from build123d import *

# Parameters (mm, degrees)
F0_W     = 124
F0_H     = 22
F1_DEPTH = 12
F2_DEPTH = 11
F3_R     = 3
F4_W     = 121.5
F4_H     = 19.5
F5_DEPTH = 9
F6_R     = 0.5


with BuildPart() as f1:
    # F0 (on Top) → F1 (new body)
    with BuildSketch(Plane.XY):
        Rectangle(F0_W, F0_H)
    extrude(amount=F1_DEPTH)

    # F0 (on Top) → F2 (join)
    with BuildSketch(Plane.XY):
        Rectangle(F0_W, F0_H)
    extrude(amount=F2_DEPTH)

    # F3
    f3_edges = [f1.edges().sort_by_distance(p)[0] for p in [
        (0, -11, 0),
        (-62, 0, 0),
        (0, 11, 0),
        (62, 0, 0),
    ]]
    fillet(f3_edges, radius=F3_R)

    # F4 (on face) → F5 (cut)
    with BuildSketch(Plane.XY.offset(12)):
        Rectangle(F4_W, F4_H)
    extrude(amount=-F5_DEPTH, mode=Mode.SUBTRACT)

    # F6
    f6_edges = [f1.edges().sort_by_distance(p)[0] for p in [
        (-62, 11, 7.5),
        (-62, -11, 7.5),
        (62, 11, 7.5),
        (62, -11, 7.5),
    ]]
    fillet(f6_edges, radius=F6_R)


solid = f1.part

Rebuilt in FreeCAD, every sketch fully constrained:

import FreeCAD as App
import Part
import Sketcher

V = App.Vector


def edges_at(feature, points):
    """Names of the edges that pass closest to the given points."""
    edges = feature.Shape.Edges
    near = lambda p: min(range(len(edges)), key=lambda i: edges[i].distToShape(Part.Vertex(*p))[0])
    return sorted({f"Edge{near(p) + 1}" for p in points})


def add_polygon(sketch, points):
    """Adds a closed chain of lines whose ends are joined by coincident constraints."""
    first, n = sketch.GeometryCount, len(points)
    for a, b in zip(points, points[1:] + points[:1]):
        sketch.addGeometry(Part.LineSegment(App.Vector(*a, 0), App.Vector(*b, 0)), False)
    for i in range(n):
        sketch.addConstraint(Sketcher.Constraint("Coincident", first + i, 2, first + (i + 1) % n, 1))

doc = App.newDocument("Part")
body = doc.addObject("PartDesign::Body", "Body")

sketch1 = body.newObject("Sketcher::SketchObject", "Sketch")
sketch1.AttachmentSupport = (doc.getObject("XY_Plane"), [""])
sketch1.MapMode = "FlatFace"
add_polygon(sketch1, [(-62, 11), (-62, -11), (62, -11), (62, 11)])
sketch1.addConstraint(Sketcher.Constraint("Vertical", 0))
sketch1.addConstraint(Sketcher.Constraint("Horizontal", 1))
sketch1.addConstraint(Sketcher.Constraint("Vertical", 2))
sketch1.addConstraint(Sketcher.Constraint("Horizontal", 3))
sketch1.addConstraint(Sketcher.Constraint("Symmetric", 0, 2, 2, 2, -1, 1))
sketch1.addConstraint(Sketcher.Constraint("DistanceX", 1, 1, 1, 2, 124.0))
sketch1.addConstraint(Sketcher.Constraint("DistanceY", 0, 2, 0, 1, 22.0))
pad1 = body.newObject("PartDesign::Pad", "Pad")
pad1.Profile = sketch1
pad1.Length = 12

sketch2 = body.newObject("Sketcher::SketchObject", "Sketch001")
sketch2.AttachmentSupport = (doc.getObject("XY_Plane"), [""])
sketch2.MapMode = "FlatFace"
add_polygon(sketch2, [(-62, 11), (-62, -11), (62, -11), (62, 11)])
sketch2.addConstraint(Sketcher.Constraint("Vertical", 0))
sketch2.addConstraint(Sketcher.Constraint("Horizontal", 1))
sketch2.addConstraint(Sketcher.Constraint("Vertical", 2))
sketch2.addConstraint(Sketcher.Constraint("Horizontal", 3))
sketch2.addConstraint(Sketcher.Constraint("Symmetric", 0, 2, 2, 2, -1, 1))
sketch2.addConstraint(Sketcher.Constraint("DistanceX", 1, 1, 1, 2, 124.0))
sketch2.addConstraint(Sketcher.Constraint("DistanceY", 0, 2, 0, 1, 22.0))
pad2 = body.newObject("PartDesign::Pad", "Pad001")
pad2.Profile = sketch2
pad2.Length = 11
doc.recompute()

fillet = body.newObject("PartDesign::Fillet", "Fillet")
fillet.Base = (pad2, edges_at(pad2, [
    (0, -11, 0),
    (-62, 0, 0),
    (0, 11, 0),
    (62, 0, 0),
]))
fillet.Radius = 3

sketch3 = body.newObject("Sketcher::SketchObject", "Sketch002")
sketch3.AttachmentSupport = (doc.getObject("XY_Plane"), [""])
sketch3.MapMode = "FlatFace"
sketch3.AttachmentOffset = App.Placement(V(0, 0, 12), App.Rotation())
add_polygon(sketch3, [(-61, 10), (-61, -10), (61, -10), (61, 10)])
sketch3.addConstraint(Sketcher.Constraint("Vertical", 0))
sketch3.addConstraint(Sketcher.Constraint("Horizontal", 1))
sketch3.addConstraint(Sketcher.Constraint("Vertical", 2))
sketch3.addConstraint(Sketcher.Constraint("Horizontal", 3))
sketch3.addConstraint(Sketcher.Constraint("Symmetric", 0, 2, 2, 2, -1, 1))
sketch3.addConstraint(Sketcher.Constraint("DistanceX", 1, 1, 1, 2, 121.5))
sketch3.addConstraint(Sketcher.Constraint("DistanceY", 0, 2, 0, 1, 19.5))
pocket1 = body.newObject("PartDesign::Pocket", "Pocket")
pocket1.Profile = sketch3
pocket1.Length = 9
doc.recompute()

fillet2 = body.newObject("PartDesign::Fillet", "Fillet001")
fillet2.Base = (pocket1, edges_at(pocket1, [
    (-62, 11, 7.5),
    (-62, -11, 7.5),
    (62, 11, 7.5),
    (62, -11, 7.5),
]))
fillet2.Radius = 0.5

doc.recompute()
